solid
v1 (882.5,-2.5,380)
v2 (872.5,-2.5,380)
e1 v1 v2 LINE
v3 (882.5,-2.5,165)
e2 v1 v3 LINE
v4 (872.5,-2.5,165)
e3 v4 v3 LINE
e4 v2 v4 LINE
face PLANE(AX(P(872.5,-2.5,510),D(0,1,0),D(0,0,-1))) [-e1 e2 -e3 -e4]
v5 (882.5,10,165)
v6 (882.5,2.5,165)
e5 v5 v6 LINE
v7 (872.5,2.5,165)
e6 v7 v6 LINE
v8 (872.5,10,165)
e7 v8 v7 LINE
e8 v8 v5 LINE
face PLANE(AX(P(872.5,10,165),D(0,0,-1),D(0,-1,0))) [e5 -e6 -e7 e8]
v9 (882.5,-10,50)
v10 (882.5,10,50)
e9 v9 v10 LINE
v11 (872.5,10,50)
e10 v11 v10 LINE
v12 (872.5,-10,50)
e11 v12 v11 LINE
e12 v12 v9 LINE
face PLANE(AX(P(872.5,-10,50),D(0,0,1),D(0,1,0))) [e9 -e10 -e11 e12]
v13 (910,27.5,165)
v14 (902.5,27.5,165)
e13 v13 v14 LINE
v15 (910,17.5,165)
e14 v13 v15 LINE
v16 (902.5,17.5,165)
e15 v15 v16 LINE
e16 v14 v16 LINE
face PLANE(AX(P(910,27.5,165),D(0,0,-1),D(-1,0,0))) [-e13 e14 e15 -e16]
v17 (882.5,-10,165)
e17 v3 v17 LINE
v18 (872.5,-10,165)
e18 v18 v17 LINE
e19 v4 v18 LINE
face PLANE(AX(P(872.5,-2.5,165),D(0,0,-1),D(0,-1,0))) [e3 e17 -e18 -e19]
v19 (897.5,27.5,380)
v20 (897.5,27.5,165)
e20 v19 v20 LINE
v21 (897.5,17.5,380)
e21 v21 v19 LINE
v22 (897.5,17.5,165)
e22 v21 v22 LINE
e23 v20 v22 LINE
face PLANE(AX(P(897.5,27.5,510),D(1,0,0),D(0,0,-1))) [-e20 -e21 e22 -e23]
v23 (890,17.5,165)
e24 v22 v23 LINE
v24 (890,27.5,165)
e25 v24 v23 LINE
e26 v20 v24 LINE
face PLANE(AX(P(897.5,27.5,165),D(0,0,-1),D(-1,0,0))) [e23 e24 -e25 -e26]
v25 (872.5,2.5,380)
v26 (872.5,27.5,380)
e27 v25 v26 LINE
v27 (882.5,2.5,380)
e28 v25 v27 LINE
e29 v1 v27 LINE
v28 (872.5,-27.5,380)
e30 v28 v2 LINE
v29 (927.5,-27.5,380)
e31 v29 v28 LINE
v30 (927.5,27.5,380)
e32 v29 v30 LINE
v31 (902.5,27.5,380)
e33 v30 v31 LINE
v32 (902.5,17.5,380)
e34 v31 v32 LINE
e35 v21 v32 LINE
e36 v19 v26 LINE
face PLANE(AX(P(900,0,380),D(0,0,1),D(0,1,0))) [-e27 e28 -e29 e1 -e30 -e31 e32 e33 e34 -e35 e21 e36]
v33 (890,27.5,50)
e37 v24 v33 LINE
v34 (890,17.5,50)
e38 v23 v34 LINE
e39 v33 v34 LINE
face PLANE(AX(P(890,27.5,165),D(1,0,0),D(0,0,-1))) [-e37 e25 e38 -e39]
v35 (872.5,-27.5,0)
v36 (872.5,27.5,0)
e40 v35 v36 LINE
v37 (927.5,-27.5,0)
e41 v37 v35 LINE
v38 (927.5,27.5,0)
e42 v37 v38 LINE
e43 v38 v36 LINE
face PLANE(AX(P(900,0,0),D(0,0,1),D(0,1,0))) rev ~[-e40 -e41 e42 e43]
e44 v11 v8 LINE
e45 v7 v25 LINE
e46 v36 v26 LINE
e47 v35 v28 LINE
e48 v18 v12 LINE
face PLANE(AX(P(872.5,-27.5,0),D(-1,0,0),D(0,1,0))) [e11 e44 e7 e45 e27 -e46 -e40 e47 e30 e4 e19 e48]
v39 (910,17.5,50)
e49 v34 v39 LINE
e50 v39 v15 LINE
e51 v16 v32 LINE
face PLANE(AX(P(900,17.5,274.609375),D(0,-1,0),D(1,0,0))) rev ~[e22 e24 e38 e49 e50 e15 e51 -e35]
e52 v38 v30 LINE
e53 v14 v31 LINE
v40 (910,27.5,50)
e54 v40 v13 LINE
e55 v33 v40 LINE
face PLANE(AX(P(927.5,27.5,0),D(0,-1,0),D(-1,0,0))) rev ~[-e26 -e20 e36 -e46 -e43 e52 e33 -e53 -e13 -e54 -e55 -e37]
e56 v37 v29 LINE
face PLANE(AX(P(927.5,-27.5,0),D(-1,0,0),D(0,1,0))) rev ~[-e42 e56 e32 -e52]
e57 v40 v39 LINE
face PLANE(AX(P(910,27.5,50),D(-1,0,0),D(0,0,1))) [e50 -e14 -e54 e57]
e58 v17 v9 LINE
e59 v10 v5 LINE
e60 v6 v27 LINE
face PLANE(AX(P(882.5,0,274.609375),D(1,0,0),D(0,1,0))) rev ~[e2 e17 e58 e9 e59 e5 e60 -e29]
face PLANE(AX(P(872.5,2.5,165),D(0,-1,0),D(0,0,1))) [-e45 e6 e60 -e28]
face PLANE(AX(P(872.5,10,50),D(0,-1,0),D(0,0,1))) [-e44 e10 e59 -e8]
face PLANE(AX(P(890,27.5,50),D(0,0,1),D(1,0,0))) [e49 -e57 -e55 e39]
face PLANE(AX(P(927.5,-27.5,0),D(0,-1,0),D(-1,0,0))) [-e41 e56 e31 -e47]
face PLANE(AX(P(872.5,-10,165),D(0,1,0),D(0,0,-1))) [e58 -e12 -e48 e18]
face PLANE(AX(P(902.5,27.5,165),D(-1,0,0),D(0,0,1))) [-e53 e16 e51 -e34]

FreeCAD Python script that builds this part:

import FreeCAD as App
import Part
import Sketcher

doc = App.newDocument("Part")
body = doc.addObject("PartDesign::Body", "Body")

# Sketch on XY plane
sketch1 = body.newObject("Sketcher::SketchObject", "Sketch")
sketch1.AttachmentSupport = (doc.getObject("XY_Plane"), [""])
sketch1.MapMode = "FlatFace"
sketch1.addGeometry(Part.LineSegment(App.Vector(-28, 28, 0), App.Vector(-28, -28, 0)), False)
sketch1.addGeometry(Part.LineSegment(App.Vector(-28, -28, 0), App.Vector(28, -28, 0)), False)
sketch1.addGeometry(Part.LineSegment(App.Vector(28, -28, 0), App.Vector(28, 28, 0)), False)
sketch1.addGeometry(Part.LineSegment(App.Vector(28, 28, 0), App.Vector(-28, 28, 0)), False)
sketch1.addConstraint(Sketcher.Constraint("Coincident", 0, 2, 1, 1))
sketch1.addConstraint(Sketcher.Constraint("Coincident", 1, 2, 2, 1))
sketch1.addConstraint(Sketcher.Constraint("Coincident", 2, 2, 3, 1))
sketch1.addConstraint(Sketcher.Constraint("Coincident", 3, 2, 0, 1))
sketch1.addConstraint(Sketcher.Constraint("Vertical", 0))
sketch1.addConstraint(Sketcher.Constraint("Horizontal", 1))
sketch1.addConstraint(Sketcher.Constraint("Vertical", 2))
sketch1.addConstraint(Sketcher.Constraint("Horizontal", 3))
sketch1.addConstraint(Sketcher.Constraint("Symmetric", 0, 2, 2, 2, -1, 1))
sketch1.addConstraint(Sketcher.Constraint("Equal", 3, 0))
sketch1.addConstraint(Sketcher.Constraint("DistanceX", 1, 1, 1, 2, 55.0))
pad1 = body.newObject("PartDesign::Pad", "Pad")
pad1.Profile = sketch1
pad1.Length = 380

# Sketch on YZ plane
sketch2 = body.newObject("Sketcher::SketchObject", "Sketch001")
sketch2.AttachmentSupport = (doc.getObject("YZ_Plane"), [""])
sketch2.MapMode = "FlatFace"
sketch2.AttachmentOffset = App.Placement(App.Vector(0, 0, 27.5), App.Rotation())
sketch2.addGeometry(Part.LineSegment(App.Vector(-2, 165, 0), App.Vector(-10, 165, 0)), False)
sketch2.addGeometry(Part.LineSegment(App.Vector(-10, 165, 0), App.Vector(-10, 50, 0)), False)
sketch2.addGeometry(Part.LineSegment(App.Vector(-10, 50, 0), App.Vector(10, 50, 0)), False)
sketch2.addGeometry(Part.LineSegment(App.Vector(10, 50, 0), App.Vector(10, 165, 0)), False)
sketch2.addGeometry(Part.LineSegment(App.Vector(10, 165, 0), App.Vector(2, 165, 0)), False)
sketch2.addGeometry(Part.LineSegment(App.Vector(2, 165, 0), App.Vector(2, 510, 0)), False)
sketch2.addGeometry(Part.LineSegment(App.Vector(2, 510, 0), App.Vector(-2, 510, 0)), False)
sketch2.addGeometry(Part.LineSegment(App.Vector(-2, 510, 0), App.Vector(-2, 165, 0)), False)
sketch2.addConstraint(Sketcher.Constraint("Coincident", 0, 2, 1, 1))
sketch2.addConstraint(Sketcher.Constraint("Coincident", 1, 2, 2, 1))
sketch2.addConstraint(Sketcher.Constraint("Coincident", 2, 2, 3, 1))
sketch2.addConstraint(Sketcher.Constraint("Coincident", 3, 2, 4, 1))
sketch2.addConstraint(Sketcher.Constraint("Coincident", 4, 2, 5, 1))
sketch2.addConstraint(Sketcher.Constraint("Coincident", 5, 2, 6, 1))
sketch2.addConstraint(Sketcher.Constraint("Coincident", 6, 2, 7, 1))
sketch2.addConstraint(Sketcher.Constraint("Coincident", 7, 2, 0, 1))
sketch2.addConstraint(Sketcher.Constraint("Horizontal", 0))
sketch2.addConstraint(Sketcher.Constraint("Vertical", 1))
sketch2.addConstraint(Sketcher.Constraint("Horizontal", 2))
sketch2.addConstraint(Sketcher.Constraint("Vertical", 3))
sketch2.addConstraint(Sketcher.Constraint("Horizontal", 4))
sketch2.addConstraint(Sketcher.Constraint("Vertical", 5))
sketch2.addConstraint(Sketcher.Constraint("Horizontal", 6))
sketch2.addConstraint(Sketcher.Constraint("Vertical", 7))
sketch2.addConstraint(Sketcher.Constraint("Symmetric", 0, 2, 3, 2, -2))
sketch2.addConstraint(Sketcher.Constraint("Equal", 0, 4))
sketch2.addConstraint(Sketcher.Constraint("DistanceX", 2, 1, 2, 2, 20.0))
sketch2.addConstraint(Sketcher.Constraint("DistanceX", 6, 2, 6, 1, 5.0))
sketch2.addConstraint(Sketcher.Constraint("DistanceY", 1, 2, 1, 1, 115.0))
sketch2.addConstraint(Sketcher.Constraint("DistanceY", 5, 1, 5, 2, 345.0))
sketch2.addConstraint(Sketcher.Constraint("DistanceY", -1, 1, 0, 2, 165.0))
pocket1 = body.newObject("PartDesign::Pocket", "Pocket")
pocket1.Profile = sketch2
pocket1.Length = 10
doc.recompute()

polarpattern = body.newObject("PartDesign::PolarPattern", "PolarPattern")
polarpattern.Originals = [pocket1]
polarpattern.Axis = (doc.getObject("Z_Axis"), [""])
polarpattern.Angle = 90
polarpattern.Occurrences = 2
body.Tip = polarpattern
body2 = doc.addObject("PartDesign::Body", "Body001")
doc.recompute()

body.Placement = App.Placement(App.Vector(-10, 0, 0), App.Rotation(App.Vector(0, 0, 1), 0))
boolean = body2.newObject("PartDesign::Boolean", "Boolean")
boolean.Type = "Fuse"
boolean.addObjects([body])
body3 = doc.addObject("PartDesign::Body", "Body002")
doc.recompute()

body2.Placement = App.Placement(App.Vector(10, 0, 0), App.Rotation(App.Vector(0, 0, 1), 0))
boolean2 = body3.newObject("PartDesign::Boolean", "Boolean001")
boolean2.Type = "Fuse"
boolean2.addObjects([body2])
body4 = doc.addObject("PartDesign::Body", "Body003")
doc.recompute()

body3.Placement = App.Placement(App.Vector(900, 0, 0), App.Rotation(App.Vector(0, 0, 1), 90))
boolean3 = body4.newObject("PartDesign::Boolean", "Boolean002")
boolean3.Type = "Fuse"
boolean3.addObjects([body3])

doc.recompute()
